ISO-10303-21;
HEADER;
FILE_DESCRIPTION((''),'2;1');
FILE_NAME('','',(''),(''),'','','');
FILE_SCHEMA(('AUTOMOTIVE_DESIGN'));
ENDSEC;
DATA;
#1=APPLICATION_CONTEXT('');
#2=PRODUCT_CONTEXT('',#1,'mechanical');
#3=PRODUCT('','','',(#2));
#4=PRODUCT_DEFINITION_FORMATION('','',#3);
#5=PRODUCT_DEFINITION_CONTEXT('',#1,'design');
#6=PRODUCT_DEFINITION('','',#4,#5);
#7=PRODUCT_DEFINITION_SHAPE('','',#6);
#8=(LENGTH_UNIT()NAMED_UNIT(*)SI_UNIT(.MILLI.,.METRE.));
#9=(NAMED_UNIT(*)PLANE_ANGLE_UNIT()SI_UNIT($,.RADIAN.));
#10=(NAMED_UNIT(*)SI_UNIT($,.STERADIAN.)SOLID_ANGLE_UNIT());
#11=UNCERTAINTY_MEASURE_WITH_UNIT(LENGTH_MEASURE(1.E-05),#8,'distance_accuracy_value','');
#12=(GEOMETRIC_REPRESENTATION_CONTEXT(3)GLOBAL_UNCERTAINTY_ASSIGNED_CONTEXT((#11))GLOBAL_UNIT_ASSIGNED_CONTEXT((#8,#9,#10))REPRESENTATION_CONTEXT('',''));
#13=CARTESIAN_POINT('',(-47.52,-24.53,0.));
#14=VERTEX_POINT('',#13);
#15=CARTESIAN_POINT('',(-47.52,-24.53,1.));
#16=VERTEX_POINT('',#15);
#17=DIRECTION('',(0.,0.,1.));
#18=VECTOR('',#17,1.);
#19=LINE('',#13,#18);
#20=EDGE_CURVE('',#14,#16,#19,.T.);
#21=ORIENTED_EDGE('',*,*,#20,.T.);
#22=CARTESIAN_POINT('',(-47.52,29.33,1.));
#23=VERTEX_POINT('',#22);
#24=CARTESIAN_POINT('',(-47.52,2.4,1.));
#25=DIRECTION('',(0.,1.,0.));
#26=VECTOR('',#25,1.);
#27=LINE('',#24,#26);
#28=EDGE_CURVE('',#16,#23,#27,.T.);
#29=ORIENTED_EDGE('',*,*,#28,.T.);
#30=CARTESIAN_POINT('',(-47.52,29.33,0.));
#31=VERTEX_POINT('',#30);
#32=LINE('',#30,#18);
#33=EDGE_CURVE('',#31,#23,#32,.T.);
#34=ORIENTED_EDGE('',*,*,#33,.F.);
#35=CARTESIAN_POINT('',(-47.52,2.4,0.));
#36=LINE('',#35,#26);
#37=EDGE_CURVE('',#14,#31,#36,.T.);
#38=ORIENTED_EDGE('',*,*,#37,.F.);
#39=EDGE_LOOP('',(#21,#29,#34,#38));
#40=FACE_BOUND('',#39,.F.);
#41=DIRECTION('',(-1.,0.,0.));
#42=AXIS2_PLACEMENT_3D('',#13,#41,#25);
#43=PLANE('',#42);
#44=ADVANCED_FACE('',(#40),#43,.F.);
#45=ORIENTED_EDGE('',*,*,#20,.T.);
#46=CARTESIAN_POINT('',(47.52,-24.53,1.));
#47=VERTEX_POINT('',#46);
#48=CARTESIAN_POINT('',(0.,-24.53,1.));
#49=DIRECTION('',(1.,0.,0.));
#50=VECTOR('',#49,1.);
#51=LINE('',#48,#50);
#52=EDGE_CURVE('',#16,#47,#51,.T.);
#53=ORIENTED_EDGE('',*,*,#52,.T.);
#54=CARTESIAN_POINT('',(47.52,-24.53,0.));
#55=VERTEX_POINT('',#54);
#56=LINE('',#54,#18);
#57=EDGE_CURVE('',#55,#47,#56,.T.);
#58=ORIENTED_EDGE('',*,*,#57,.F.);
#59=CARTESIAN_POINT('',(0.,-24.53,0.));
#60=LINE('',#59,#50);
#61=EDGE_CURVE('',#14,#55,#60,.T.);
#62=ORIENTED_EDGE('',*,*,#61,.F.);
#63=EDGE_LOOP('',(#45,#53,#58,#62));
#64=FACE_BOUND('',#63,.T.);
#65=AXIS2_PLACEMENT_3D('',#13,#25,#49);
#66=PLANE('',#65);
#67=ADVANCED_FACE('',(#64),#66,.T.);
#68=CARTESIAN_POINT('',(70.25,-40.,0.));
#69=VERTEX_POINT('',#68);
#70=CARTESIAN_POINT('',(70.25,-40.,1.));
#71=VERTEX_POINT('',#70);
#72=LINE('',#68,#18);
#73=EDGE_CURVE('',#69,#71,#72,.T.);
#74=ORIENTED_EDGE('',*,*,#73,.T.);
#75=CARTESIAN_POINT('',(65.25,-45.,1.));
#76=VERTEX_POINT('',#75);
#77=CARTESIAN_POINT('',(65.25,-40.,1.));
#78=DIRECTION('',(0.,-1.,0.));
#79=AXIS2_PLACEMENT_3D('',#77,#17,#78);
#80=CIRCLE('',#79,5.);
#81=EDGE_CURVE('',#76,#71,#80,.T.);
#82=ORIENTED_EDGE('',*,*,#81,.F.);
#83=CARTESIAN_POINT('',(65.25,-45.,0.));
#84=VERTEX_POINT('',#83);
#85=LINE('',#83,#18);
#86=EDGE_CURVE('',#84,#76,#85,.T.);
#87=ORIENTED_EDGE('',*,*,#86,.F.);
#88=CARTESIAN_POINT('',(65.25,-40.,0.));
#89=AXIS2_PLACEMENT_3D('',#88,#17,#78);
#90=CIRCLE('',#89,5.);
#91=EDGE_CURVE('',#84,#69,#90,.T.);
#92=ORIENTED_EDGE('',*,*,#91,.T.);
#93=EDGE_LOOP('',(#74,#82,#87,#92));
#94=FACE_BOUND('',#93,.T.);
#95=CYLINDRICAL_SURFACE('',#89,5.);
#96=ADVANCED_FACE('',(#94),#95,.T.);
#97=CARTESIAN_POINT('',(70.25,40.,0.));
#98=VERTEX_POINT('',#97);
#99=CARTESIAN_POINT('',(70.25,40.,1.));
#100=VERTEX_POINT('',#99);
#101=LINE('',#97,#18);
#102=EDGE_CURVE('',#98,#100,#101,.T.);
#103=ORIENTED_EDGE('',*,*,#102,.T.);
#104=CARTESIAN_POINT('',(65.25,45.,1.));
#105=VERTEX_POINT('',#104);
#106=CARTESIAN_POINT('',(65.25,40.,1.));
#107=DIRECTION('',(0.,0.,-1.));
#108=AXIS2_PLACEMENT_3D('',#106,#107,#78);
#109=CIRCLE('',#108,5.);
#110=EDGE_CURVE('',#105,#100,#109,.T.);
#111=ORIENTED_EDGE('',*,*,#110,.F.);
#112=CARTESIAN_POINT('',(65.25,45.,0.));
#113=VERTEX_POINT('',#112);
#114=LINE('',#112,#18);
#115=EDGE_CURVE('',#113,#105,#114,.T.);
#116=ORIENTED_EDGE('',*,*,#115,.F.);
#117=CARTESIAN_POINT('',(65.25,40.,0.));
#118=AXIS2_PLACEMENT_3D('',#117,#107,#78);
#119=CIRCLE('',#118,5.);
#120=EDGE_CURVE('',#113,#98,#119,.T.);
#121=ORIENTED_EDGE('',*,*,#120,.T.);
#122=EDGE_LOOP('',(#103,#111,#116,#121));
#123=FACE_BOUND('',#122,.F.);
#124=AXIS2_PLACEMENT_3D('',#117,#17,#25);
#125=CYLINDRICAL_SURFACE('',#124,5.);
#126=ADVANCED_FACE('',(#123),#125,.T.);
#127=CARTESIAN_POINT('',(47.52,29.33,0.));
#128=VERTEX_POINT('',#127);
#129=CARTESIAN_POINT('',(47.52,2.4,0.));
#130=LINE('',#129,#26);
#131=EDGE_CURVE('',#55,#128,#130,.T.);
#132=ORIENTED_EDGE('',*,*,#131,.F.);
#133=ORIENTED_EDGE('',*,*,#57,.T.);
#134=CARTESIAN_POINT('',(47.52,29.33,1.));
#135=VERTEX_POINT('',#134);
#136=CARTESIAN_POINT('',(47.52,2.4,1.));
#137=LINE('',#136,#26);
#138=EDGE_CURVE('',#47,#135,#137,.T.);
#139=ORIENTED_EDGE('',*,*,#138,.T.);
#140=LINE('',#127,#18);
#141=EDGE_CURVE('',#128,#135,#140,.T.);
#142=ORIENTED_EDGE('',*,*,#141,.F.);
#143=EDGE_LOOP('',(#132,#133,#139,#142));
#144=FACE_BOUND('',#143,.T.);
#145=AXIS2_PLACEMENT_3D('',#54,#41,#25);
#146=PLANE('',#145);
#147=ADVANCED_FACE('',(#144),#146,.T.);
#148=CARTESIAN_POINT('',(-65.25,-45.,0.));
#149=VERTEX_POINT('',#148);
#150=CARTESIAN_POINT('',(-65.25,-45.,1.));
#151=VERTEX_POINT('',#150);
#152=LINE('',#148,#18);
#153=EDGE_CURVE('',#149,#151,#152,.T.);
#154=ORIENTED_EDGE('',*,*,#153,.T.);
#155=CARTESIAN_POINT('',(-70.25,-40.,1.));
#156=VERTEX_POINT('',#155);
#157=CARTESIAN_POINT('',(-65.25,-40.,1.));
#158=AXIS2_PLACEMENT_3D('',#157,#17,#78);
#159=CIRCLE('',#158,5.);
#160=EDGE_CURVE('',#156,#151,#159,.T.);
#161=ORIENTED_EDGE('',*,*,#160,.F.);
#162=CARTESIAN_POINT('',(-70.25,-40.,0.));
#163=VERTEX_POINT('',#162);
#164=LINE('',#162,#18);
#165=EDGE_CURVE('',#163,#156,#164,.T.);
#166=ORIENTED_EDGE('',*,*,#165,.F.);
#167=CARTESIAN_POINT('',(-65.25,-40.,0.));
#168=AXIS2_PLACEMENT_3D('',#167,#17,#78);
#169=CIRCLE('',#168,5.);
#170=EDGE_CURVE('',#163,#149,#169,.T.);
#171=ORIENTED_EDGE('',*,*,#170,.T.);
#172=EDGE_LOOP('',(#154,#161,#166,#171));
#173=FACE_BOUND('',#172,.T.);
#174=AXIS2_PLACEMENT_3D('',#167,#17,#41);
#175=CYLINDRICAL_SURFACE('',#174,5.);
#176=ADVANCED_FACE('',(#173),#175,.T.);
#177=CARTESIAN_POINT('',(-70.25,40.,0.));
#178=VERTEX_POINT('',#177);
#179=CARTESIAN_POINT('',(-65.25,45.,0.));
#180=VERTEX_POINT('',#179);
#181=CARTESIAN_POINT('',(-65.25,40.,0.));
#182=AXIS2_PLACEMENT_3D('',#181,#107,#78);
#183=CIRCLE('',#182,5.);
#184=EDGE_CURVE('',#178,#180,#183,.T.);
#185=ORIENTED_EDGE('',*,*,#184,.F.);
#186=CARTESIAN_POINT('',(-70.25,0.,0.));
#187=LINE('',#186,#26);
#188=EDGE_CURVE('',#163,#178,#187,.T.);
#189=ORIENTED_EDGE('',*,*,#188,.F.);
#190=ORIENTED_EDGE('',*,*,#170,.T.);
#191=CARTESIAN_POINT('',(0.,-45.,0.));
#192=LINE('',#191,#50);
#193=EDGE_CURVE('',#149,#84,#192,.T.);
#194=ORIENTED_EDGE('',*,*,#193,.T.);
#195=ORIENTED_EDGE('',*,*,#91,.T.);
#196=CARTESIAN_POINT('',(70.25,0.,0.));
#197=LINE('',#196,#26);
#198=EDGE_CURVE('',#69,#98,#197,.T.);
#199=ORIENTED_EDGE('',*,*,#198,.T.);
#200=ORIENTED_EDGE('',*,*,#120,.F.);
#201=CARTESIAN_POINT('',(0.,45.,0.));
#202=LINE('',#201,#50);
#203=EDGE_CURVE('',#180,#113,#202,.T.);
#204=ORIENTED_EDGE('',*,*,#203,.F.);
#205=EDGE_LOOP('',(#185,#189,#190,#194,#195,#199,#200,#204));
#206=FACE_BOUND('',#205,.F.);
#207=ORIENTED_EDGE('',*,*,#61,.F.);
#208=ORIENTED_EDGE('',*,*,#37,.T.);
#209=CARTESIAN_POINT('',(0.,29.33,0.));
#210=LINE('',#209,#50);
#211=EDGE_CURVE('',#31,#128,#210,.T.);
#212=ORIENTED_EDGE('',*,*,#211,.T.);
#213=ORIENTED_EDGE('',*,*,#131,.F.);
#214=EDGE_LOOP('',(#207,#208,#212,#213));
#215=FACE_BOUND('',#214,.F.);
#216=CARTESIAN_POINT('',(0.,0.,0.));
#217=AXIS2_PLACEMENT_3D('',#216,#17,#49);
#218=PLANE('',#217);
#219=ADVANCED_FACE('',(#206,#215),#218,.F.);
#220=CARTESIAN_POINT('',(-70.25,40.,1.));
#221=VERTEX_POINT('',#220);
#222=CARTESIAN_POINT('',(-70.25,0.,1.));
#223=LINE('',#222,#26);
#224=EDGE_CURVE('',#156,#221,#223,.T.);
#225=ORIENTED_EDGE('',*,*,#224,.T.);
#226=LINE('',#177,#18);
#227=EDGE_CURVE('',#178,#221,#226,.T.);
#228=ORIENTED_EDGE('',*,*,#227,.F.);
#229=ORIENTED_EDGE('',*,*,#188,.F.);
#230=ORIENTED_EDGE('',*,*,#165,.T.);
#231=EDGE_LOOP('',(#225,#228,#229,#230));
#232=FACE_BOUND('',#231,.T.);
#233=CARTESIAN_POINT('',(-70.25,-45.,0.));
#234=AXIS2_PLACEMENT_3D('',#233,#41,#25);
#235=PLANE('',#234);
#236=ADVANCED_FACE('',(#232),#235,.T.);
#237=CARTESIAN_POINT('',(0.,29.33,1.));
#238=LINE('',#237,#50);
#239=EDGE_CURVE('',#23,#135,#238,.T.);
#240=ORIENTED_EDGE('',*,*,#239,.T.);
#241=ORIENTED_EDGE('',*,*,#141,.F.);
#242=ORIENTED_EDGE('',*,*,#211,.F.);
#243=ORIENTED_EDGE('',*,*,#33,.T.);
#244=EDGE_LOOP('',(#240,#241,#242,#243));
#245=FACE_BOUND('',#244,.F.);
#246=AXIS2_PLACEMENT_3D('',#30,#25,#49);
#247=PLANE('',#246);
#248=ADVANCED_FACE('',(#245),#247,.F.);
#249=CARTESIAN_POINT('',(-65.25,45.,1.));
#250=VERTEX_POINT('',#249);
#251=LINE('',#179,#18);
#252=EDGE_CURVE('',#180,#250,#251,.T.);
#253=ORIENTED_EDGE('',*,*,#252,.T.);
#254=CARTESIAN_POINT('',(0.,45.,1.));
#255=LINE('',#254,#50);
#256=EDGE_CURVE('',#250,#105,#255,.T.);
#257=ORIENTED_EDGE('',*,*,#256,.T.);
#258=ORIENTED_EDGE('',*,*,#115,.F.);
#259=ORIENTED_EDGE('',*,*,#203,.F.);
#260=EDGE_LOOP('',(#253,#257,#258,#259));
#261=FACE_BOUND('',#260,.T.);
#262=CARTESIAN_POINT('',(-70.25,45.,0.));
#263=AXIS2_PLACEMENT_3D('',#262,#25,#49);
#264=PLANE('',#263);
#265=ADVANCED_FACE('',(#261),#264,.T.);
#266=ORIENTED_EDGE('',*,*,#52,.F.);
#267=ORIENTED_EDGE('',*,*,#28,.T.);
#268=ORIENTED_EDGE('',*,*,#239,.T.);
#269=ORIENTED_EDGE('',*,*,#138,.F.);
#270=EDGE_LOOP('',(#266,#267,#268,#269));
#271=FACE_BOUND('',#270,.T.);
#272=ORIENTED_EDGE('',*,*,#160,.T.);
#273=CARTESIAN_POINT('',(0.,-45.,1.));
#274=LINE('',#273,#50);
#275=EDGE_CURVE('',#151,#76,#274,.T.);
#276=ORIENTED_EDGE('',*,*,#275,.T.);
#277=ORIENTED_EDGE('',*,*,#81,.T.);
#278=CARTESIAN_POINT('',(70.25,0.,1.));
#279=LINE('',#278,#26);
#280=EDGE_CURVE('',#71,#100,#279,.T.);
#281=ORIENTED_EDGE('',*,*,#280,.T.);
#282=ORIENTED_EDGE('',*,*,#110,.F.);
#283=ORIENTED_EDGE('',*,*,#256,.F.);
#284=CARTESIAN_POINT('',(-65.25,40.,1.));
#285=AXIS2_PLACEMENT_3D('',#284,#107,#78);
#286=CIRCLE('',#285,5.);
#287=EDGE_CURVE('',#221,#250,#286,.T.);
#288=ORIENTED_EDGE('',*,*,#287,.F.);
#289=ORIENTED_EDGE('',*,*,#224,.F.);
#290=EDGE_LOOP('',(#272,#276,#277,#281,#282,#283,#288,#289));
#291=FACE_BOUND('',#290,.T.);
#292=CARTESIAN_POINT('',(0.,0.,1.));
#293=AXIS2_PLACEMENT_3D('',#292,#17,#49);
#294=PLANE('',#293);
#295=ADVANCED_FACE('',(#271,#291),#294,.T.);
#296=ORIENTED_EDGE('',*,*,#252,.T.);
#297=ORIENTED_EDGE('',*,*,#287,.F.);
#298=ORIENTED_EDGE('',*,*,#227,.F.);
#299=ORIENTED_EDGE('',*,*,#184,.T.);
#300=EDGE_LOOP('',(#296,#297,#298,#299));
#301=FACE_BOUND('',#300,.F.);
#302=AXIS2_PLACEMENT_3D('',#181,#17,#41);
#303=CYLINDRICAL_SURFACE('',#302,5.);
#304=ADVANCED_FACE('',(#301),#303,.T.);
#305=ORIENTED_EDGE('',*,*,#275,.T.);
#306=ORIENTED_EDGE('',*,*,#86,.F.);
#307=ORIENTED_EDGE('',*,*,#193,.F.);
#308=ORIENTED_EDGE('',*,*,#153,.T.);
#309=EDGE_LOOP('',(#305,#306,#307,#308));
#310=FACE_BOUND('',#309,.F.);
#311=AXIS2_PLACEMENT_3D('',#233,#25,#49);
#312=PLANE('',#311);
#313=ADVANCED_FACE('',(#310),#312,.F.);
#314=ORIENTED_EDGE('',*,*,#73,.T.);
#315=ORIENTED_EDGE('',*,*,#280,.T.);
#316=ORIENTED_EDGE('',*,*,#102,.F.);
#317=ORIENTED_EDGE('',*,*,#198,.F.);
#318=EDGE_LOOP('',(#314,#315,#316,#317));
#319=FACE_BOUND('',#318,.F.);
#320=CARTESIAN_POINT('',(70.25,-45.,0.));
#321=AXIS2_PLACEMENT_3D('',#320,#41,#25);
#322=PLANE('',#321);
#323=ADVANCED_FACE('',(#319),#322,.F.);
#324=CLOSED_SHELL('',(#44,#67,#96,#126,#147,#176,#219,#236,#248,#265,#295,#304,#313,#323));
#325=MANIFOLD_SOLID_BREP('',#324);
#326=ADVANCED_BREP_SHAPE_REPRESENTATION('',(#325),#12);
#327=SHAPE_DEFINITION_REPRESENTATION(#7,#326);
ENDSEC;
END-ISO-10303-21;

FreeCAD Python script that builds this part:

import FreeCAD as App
import Part
import Sketcher

V = App.Vector


def edges_at(feature, points):
    """Names of the edges that pass closest to the given points."""
    edges = feature.Shape.Edges
    near = lambda p: min(range(len(edges)), key=lambda i: edges[i].distToShape(Part.Vertex(*p))[0])
    return sorted({f"Edge{near(p) + 1}" for p in points})

doc = App.newDocument("Part")
body = doc.addObject("PartDesign::Body", "Body")

sketch1 = body.newObject("Sketcher::SketchObject", "Sketch")
sketch1.AttachmentSupport = (doc.getObject("XY_Plane"), [""])
sketch1.MapMode = "FlatFace"
sketch1.addGeometry(Part.LineSegment(V(-70, 45, 0), V(-70, -45, 0)), False)
sketch1.addGeometry(Part.LineSegment(V(-70, -45, 0), V(70, -45, 0)), False)
sketch1.addGeometry(Part.LineSegment(V(70, -45, 0), V(70, 45, 0)), False)
sketch1.addGeometry(Part.LineSegment(V(70, 45, 0), V(-70, 45, 0)), False)
sketch1.addGeometry(Part.LineSegment(V(48, -25, 0), V(-48, -25, 0)), False)
sketch1.addGeometry(Part.LineSegment(V(-48, -25, 0), V(-48, 29, 0)), False)
sketch1.addGeometry(Part.LineSegment(V(-48, 29, 0), V(48, 29, 0)), False)
sketch1.addGeometry(Part.LineSegment(V(48, 29, 0), V(48, -25, 0)), False)
sketch1.addConstraint(Sketcher.Constraint("Coincident", 0, 2, 1, 1))
sketch1.addConstraint(Sketcher.Constraint("Coincident", 1, 2, 2, 1))
sketch1.addConstraint(Sketcher.Constraint("Coincident", 2, 2, 3, 1))
sketch1.addConstraint(Sketcher.Constraint("Coincident", 3, 2, 0, 1))
sketch1.addConstraint(Sketcher.Constraint("Coincident", 4, 2, 5, 1))
sketch1.addConstraint(Sketcher.Constraint("Coincident", 5, 2, 6, 1))
sketch1.addConstraint(Sketcher.Constraint("Coincident", 6, 2, 7, 1))
sketch1.addConstraint(Sketcher.Constraint("Coincident", 7, 2, 4, 1))
sketch1.addConstraint(Sketcher.Constraint("Vertical", 0))
sketch1.addConstraint(Sketcher.Constraint("Horizontal", 1))
sketch1.addConstraint(Sketcher.Constraint("Vertical", 2))
sketch1.addConstraint(Sketcher.Constraint("Horizontal", 3))
sketch1.addConstraint(Sketcher.Constraint("Horizontal", 4))
sketch1.addConstraint(Sketcher.Constraint("Vertical", 5))
sketch1.addConstraint(Sketcher.Constraint("Horizontal", 6))
sketch1.addConstraint(Sketcher.Constraint("Vertical", 7))
sketch1.addConstraint(Sketcher.Constraint("Symmetric", 0, 2, 2, 2, -1, 1))
sketch1.addConstraint(Sketcher.Constraint("DistanceY", 0, 2, 0, 1, 90.0))
sketch1.addConstraint(Sketcher.Constraint("DistanceX", 1, 1, 1, 2, 140.5))
sketch1.addConstraint(Sketcher.Constraint("DistanceX", 4, 2, 4, 1, 95.04))
sketch1.addConstraint(Sketcher.Constraint("DistanceY", 5, 1, 5, 2, 53.86))
sketch1.addConstraint(Sketcher.Constraint("DistanceX", 4, 2, -1, 1, 47.52))
sketch1.addConstraint(Sketcher.Constraint("DistanceY", 4, 2, -1, 1, 24.53))
pad1 = body.newObject("PartDesign::Pad", "Pad")
pad1.Profile = sketch1
pad1.Length = 1
doc.recompute()

fillet = body.newObject("PartDesign::Fillet", "Fillet")
fillet.Base = (pad1, edges_at(pad1, [
    (-70.25, 45, 0.5),
    (-70.25, -45, 0.5),
    (70.25, -45, 0.5),
    (70.25, 45, 0.5),
]))
fillet.Radius = 5

doc.recompute()
